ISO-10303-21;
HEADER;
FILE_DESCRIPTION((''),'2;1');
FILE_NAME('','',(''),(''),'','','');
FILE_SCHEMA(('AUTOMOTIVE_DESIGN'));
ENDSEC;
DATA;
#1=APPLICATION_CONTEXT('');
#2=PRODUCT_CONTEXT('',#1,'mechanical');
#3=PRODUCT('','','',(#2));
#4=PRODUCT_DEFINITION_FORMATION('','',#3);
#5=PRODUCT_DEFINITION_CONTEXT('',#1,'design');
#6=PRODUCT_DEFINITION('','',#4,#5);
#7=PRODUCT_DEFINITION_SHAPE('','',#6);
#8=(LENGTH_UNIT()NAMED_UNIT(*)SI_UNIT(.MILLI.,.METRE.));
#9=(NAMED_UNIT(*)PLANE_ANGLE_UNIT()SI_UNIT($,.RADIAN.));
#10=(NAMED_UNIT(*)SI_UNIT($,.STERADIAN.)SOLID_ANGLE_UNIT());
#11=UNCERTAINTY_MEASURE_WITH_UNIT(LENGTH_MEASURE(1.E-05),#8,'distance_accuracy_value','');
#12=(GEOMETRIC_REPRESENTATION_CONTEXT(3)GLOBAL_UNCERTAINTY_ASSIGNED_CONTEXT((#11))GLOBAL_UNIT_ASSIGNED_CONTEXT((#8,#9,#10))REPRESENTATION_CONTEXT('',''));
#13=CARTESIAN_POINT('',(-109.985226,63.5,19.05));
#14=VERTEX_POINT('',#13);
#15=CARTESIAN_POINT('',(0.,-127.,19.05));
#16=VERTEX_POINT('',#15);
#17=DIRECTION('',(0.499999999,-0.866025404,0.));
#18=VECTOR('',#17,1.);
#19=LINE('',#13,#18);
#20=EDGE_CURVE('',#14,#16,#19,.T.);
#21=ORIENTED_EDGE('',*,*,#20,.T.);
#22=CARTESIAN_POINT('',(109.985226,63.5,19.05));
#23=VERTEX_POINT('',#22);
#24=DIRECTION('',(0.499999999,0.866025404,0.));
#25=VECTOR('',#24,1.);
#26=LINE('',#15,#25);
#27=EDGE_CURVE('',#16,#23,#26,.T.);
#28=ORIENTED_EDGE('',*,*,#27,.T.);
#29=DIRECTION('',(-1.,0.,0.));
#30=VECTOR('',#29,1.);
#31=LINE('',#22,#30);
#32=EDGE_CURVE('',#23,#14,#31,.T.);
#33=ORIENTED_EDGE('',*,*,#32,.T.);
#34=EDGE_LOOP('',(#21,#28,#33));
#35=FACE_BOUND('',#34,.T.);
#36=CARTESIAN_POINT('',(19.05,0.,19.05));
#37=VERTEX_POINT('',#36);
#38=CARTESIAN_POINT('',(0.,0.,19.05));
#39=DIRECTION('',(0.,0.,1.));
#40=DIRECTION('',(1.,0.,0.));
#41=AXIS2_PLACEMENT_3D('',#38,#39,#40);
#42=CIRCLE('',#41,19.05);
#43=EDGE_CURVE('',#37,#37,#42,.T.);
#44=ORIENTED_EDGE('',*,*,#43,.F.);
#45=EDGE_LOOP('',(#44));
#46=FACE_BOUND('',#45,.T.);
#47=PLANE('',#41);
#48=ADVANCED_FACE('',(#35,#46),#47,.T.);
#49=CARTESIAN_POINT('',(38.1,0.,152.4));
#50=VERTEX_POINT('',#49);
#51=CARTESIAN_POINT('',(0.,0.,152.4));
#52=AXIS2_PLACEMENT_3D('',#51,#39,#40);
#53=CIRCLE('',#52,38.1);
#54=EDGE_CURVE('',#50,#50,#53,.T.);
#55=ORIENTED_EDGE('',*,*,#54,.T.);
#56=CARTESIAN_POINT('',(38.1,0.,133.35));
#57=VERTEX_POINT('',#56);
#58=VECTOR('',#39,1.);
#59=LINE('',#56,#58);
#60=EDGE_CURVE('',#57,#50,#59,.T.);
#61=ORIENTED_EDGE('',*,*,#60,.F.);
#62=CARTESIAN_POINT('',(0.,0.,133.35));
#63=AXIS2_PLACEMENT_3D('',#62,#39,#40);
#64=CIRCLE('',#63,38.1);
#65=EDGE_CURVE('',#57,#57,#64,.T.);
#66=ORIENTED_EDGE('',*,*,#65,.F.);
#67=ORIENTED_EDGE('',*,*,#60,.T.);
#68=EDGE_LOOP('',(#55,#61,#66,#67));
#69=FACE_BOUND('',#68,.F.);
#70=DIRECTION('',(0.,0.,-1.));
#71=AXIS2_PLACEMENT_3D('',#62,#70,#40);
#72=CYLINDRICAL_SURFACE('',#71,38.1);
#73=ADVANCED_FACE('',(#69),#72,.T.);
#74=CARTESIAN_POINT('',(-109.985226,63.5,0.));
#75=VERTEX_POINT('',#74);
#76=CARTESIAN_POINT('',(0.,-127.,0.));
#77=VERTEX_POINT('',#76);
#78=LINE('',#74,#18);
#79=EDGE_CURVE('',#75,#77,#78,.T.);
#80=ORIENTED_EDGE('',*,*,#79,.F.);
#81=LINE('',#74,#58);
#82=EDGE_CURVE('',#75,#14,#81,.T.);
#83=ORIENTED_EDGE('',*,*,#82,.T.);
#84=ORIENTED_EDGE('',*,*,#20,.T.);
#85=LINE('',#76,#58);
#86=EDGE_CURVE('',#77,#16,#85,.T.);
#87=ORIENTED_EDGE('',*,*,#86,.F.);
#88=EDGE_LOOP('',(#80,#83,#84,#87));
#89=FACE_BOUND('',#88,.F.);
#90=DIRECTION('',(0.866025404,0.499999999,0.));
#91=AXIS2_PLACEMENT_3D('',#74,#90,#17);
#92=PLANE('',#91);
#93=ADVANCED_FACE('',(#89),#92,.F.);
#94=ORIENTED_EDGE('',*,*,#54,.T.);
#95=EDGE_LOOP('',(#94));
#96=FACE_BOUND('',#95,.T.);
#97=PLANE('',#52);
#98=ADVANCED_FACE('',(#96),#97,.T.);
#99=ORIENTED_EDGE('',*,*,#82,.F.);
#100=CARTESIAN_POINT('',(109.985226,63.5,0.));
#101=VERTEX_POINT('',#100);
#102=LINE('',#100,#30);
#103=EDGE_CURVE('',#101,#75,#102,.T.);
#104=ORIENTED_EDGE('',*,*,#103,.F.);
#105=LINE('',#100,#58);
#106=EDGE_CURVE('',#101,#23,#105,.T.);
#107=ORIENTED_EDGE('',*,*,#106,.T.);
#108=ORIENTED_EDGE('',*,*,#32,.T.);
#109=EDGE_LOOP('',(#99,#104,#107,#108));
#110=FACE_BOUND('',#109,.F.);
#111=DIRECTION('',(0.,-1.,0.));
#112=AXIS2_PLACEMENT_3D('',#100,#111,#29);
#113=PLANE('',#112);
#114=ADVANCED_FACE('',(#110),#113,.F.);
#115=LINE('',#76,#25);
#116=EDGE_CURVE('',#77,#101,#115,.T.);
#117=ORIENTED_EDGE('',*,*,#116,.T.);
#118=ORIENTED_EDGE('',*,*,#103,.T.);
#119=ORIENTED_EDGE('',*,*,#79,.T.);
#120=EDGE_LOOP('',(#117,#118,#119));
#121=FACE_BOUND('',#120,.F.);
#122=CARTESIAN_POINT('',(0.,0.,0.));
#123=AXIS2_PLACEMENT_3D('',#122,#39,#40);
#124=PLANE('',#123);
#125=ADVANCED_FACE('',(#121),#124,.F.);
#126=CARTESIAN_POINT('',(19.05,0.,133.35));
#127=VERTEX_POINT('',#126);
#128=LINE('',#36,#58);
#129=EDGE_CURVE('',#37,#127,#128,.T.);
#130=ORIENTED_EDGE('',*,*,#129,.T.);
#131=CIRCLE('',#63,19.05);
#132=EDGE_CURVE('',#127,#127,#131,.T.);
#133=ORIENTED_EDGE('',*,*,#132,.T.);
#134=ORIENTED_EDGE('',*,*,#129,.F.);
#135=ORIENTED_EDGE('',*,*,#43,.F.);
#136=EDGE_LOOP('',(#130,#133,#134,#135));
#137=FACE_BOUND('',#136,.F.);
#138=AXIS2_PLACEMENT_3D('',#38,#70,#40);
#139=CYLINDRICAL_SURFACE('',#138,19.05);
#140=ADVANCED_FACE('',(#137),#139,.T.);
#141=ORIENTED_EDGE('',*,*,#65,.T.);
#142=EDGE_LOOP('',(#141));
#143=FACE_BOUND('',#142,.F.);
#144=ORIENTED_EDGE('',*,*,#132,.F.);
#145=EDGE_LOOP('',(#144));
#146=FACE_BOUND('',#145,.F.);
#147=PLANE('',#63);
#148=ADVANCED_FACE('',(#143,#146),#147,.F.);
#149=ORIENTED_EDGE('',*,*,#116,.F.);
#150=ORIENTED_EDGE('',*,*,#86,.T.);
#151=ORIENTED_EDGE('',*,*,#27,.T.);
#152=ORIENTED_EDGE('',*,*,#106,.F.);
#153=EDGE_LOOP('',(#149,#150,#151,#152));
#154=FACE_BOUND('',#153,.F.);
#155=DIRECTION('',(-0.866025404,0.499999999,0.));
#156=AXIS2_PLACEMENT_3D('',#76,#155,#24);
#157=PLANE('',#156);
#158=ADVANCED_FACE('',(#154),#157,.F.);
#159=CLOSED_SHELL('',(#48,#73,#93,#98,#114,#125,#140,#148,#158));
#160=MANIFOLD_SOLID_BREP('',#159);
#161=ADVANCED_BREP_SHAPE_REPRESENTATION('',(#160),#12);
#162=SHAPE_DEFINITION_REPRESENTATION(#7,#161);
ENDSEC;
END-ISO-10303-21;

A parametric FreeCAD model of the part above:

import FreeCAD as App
import Part
import Sketcher
Q = App.Units.Quantity

doc = App.newDocument("Part")
params = doc.addObject("Spreadsheet::Sheet", "Params")
for row, (alias, value) in enumerate([
    ("pad1_length", "0.75 in"),
    ("sketch2_diameter", "1.5 in"),
    ("pad2_length", "4.5 in"),
    ("sketch3_diameter", "3 in"),
    ("pad3_length", "0.75 in"),
], start=1):
    params.set(f"A{row}", alias)
    params.set(f"B{row}", "=" + value)
    params.setAlias(f"B{row}", alias)

body = doc.addObject("PartDesign::Body", "Body")

sketch1 = body.newObject("Sketcher::SketchObject", "Sketch")
sketch1.AttachmentSupport = (doc.getObject("XY_Plane"), [""])
sketch1.MapMode = "FlatFace"
sketch1.addGeometry([
    Part.LineSegment(App.Vector(-110, 64, 0), App.Vector(0, -127, 0)),
    Part.LineSegment(App.Vector(0, -127, 0), App.Vector(110, 64, 0)),
    Part.LineSegment(App.Vector(110, 64, 0), App.Vector(-110, 64, 0)),
], False)
sketch1.addConstraint([
    Sketcher.Constraint("Coincident", 0, 2, 1, 1),
    Sketcher.Constraint("Coincident", 1, 2, 2, 1),
    Sketcher.Constraint("Coincident", 2, 2, 0, 1),
    Sketcher.Constraint("Horizontal", 2),
    Sketcher.Constraint("PointOnObject", 0, 2, -2),
    Sketcher.Constraint("Equal", 0, 1),
    Sketcher.Constraint("DistanceY", 0, 2, -1, 1, Q("5 in")),
    Sketcher.Constraint("Angle", 0, Q("-60 deg")),
    Sketcher.Constraint("DistanceY", -1, 1, 1, 2, Q("2.5 in")),
])
pad1 = body.newObject("PartDesign::Pad", "Pad")
pad1.Profile = sketch1
pad1.setExpression("Length", "Params.pad1_length")

sketch2 = body.newObject("Sketcher::SketchObject", "Sketch001")
sketch2.AttachmentSupport = (doc.getObject("XY_Plane"), [""])
sketch2.MapMode = "FlatFace"
sketch2.AttachmentOffset = App.Placement(App.Vector(0, 0, 0.75 * 25.4), App.Rotation())
sketch2.addGeometry(Part.Circle(App.Vector(0, 0, 0), App.Vector(0, 0, 1), 19), False)
sketch2.addConstraint([
    Sketcher.Constraint("Coincident", 0, 3, -1, 1),
    Sketcher.Constraint("Diameter", 0, Q("1.5 in")),
])
sketch2.setExpression("Constraints[1]", "Params.sketch2_diameter")
pad2 = body.newObject("PartDesign::Pad", "Pad001")
pad2.Profile = sketch2
pad2.setExpression("Length", "Params.pad2_length")

sketch3 = body.newObject("Sketcher::SketchObject", "Sketch002")
sketch3.AttachmentSupport = (doc.getObject("XY_Plane"), [""])
sketch3.MapMode = "FlatFace"
sketch3.AttachmentOffset = App.Placement(App.Vector(0, 0, 5.25 * 25.4), App.Rotation())
sketch3.addGeometry(Part.Circle(App.Vector(0, 0, 0), App.Vector(0, 0, 1), 38), False)
sketch3.addConstraint([
    Sketcher.Constraint("Coincident", 0, 3, -1, 1),
    Sketcher.Constraint("Diameter", 0, Q("3 in")),
])
sketch3.setExpression("Constraints[1]", "Params.sketch3_diameter")
pad3 = body.newObject("PartDesign::Pad", "Pad002")
pad3.Profile = sketch3
pad3.setExpression("Length", "Params.pad3_length")

doc.recompute()
